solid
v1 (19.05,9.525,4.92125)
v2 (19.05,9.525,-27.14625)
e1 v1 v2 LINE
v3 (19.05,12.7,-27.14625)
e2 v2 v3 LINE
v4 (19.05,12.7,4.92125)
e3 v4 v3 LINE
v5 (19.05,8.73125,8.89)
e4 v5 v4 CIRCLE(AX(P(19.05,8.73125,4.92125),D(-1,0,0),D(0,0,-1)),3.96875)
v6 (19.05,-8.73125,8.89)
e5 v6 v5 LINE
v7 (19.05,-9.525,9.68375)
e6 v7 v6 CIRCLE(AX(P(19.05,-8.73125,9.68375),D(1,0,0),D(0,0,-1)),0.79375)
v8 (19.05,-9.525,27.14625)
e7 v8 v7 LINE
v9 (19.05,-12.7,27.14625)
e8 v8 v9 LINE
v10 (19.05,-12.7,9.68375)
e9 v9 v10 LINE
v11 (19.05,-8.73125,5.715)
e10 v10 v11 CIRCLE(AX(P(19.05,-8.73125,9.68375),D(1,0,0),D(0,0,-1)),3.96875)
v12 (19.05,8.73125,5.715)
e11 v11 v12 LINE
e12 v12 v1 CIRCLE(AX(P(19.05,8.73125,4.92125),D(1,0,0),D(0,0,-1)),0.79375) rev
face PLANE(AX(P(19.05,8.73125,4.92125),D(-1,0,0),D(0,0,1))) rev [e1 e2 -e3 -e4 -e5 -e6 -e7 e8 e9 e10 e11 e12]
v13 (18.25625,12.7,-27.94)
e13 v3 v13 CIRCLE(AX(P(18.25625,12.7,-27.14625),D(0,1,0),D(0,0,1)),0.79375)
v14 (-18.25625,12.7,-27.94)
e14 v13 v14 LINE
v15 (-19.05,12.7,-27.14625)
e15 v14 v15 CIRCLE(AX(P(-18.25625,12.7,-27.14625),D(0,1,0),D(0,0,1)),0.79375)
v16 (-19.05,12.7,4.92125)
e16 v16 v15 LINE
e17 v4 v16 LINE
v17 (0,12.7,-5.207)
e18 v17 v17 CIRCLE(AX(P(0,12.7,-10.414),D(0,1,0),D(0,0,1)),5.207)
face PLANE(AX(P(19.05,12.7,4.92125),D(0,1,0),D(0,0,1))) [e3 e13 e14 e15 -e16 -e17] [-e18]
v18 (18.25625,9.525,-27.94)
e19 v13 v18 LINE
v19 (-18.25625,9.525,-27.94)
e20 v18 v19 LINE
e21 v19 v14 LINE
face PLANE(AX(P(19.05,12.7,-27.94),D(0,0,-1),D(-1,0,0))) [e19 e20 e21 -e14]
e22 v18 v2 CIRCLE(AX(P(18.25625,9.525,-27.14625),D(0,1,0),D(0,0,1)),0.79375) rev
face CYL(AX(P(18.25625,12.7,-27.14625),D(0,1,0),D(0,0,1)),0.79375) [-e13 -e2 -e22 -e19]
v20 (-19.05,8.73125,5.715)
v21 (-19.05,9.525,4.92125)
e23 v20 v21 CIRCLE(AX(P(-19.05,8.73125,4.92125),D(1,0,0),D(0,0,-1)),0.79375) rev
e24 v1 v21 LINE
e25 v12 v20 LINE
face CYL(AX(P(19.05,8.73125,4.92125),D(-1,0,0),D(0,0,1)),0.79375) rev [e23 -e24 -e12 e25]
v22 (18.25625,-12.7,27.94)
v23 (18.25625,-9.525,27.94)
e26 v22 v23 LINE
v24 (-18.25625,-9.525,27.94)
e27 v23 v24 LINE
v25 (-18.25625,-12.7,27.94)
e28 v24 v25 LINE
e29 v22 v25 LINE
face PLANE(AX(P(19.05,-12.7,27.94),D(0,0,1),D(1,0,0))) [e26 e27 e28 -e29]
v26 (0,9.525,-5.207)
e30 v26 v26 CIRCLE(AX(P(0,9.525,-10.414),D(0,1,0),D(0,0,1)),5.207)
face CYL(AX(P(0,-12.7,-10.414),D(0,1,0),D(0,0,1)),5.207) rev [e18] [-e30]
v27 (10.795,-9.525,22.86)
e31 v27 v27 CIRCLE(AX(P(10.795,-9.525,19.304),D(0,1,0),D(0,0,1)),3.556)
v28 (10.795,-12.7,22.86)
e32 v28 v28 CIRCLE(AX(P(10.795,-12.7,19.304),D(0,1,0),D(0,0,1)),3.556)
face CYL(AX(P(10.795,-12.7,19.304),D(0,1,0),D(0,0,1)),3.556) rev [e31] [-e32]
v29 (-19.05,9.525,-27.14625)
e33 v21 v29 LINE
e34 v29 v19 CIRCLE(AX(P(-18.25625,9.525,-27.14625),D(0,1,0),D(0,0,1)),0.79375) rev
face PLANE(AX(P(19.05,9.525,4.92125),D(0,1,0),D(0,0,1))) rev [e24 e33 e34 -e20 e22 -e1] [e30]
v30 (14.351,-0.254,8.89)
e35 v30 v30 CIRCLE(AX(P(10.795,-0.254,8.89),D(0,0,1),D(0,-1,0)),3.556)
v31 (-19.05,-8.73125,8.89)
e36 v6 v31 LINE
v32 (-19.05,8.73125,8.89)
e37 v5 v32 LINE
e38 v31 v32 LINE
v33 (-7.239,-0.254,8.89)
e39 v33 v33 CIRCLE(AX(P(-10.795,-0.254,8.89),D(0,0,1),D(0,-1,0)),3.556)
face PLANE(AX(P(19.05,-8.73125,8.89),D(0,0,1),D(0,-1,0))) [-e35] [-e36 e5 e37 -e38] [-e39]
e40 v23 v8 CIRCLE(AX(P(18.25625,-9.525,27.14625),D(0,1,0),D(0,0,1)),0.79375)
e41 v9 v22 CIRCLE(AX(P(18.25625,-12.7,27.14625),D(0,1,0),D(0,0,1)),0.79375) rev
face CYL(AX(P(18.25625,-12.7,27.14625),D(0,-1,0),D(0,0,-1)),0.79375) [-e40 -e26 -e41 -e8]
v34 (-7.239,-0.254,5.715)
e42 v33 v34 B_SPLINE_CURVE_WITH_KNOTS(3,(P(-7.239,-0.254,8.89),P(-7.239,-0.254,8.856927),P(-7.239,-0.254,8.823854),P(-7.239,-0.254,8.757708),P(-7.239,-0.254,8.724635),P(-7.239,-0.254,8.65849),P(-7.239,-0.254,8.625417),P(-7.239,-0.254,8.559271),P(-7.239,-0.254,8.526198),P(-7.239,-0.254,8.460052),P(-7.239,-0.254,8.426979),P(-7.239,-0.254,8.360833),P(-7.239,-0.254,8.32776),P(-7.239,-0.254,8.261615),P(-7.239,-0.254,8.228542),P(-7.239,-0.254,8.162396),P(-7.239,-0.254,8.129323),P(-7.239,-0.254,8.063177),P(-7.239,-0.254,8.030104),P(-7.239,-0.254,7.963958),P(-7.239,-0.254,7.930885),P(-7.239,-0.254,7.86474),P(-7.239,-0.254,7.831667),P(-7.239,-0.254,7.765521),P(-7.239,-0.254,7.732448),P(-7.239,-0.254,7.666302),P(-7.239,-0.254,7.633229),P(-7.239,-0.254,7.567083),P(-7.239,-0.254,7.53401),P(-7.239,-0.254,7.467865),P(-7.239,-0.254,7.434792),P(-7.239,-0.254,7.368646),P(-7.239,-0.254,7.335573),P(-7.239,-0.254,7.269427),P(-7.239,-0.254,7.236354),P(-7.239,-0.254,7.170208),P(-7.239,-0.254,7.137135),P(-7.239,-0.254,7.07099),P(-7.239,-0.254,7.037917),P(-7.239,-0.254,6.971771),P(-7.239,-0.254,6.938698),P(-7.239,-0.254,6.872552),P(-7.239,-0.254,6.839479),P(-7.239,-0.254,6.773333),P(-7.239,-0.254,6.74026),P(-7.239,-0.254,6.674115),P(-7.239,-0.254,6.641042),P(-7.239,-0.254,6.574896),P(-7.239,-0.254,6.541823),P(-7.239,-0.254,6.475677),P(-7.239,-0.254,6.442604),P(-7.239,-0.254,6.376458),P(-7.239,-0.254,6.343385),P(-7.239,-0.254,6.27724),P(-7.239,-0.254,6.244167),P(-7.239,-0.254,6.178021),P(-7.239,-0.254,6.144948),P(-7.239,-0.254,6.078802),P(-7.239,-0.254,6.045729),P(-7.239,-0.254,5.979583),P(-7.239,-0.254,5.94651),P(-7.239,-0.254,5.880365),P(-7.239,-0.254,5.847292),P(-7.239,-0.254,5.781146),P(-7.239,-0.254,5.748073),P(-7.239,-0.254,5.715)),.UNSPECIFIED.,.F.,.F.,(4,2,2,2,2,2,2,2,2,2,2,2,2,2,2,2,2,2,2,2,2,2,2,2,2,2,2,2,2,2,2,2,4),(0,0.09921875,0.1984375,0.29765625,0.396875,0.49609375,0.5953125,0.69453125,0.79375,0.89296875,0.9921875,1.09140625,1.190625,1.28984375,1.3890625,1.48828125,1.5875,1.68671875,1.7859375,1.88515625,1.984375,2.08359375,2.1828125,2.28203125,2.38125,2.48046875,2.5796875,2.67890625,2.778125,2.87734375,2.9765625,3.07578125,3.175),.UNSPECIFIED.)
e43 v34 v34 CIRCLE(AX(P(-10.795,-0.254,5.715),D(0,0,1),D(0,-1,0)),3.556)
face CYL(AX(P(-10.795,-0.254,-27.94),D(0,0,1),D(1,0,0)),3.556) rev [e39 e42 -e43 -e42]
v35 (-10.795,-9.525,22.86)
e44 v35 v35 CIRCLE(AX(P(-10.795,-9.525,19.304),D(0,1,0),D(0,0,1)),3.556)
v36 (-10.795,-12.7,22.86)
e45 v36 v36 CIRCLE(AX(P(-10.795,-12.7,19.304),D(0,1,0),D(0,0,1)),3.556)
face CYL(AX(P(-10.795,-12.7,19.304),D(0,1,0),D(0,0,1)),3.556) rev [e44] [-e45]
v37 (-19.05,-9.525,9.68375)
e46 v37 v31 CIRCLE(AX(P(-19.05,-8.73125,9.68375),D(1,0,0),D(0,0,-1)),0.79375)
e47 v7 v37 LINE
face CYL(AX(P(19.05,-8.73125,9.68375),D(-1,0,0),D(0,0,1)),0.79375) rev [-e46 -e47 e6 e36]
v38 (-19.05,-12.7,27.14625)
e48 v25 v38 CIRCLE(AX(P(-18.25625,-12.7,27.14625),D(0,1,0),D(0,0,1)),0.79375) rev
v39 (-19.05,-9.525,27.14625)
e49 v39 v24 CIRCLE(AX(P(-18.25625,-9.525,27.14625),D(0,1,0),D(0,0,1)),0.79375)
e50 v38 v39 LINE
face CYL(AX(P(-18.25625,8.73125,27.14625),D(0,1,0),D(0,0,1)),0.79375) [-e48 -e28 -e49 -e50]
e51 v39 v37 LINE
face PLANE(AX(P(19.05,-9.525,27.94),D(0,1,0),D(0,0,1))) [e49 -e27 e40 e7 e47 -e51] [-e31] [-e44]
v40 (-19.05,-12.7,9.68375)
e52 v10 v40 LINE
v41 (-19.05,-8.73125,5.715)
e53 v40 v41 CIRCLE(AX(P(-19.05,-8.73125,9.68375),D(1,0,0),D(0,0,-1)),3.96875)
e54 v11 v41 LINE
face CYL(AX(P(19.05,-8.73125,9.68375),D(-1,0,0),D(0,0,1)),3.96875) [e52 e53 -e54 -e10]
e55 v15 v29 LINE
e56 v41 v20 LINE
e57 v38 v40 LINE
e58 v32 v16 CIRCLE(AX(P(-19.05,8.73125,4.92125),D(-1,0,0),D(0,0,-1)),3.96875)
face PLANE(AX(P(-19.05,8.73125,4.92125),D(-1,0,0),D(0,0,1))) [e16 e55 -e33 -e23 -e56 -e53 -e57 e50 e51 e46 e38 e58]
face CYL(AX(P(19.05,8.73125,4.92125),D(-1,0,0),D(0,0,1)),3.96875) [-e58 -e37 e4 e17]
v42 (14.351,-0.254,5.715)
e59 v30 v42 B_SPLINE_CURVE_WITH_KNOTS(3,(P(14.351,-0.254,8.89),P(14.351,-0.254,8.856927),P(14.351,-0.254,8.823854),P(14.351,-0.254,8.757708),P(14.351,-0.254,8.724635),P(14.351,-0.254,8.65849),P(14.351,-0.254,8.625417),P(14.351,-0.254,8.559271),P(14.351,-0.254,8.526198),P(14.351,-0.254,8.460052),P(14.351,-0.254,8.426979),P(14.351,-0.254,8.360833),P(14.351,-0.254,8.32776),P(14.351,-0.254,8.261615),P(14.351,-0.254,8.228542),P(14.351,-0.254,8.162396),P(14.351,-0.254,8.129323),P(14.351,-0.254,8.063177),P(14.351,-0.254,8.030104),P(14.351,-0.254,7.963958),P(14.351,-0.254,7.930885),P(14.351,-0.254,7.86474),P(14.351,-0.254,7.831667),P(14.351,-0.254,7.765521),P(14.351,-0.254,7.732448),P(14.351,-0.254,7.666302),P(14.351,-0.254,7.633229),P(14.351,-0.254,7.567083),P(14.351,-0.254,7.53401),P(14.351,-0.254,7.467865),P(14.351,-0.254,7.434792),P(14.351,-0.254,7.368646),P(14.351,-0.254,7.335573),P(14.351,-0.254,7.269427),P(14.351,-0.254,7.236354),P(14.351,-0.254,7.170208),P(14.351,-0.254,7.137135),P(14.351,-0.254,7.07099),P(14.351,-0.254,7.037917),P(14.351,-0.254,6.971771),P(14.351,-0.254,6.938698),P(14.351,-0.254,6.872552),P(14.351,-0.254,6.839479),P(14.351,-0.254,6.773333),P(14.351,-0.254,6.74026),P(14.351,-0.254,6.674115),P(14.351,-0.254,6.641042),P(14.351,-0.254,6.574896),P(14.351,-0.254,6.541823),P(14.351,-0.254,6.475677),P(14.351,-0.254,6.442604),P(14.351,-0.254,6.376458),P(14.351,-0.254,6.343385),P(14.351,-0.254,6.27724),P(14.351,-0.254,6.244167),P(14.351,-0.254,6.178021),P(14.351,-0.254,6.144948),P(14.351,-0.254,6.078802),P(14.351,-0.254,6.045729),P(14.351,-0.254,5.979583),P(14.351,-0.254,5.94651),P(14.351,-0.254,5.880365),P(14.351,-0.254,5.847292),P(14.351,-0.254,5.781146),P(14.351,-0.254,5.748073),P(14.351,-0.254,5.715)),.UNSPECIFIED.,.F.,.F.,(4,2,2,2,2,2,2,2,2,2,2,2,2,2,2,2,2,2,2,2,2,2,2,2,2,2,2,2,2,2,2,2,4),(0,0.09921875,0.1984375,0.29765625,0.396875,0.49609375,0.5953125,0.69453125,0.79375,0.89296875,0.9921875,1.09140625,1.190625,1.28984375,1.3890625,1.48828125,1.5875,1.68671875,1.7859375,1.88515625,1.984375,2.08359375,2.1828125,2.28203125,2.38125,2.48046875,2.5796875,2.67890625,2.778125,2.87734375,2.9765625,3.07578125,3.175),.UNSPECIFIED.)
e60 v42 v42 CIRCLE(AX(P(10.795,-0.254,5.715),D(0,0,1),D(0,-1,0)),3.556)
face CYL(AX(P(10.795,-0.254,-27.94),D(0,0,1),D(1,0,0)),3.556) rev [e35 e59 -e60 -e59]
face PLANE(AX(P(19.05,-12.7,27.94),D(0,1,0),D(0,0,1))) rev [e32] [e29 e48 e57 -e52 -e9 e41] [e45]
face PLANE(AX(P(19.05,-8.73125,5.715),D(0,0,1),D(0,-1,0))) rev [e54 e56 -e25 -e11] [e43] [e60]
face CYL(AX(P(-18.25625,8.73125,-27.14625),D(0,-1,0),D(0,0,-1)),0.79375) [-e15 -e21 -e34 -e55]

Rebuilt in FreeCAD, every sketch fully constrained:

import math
import FreeCAD as App
import Part
import Sketcher
from FreeCAD import Vector
Q = App.Units.Quantity


def edges_at(feature, points):
    """Names of the edges that pass closest to the given points."""
    edges = feature.Shape.Edges
    near = lambda p: min(range(len(edges)), key=lambda i: edges[i].distToShape(Part.Vertex(*p))[0])
    return sorted({f"Edge{near(p) + 1}" for p in points})

doc = App.newDocument("Part")
params = doc.addObject("Spreadsheet::Sheet", "Params")
for row, (alias, value) in enumerate([
    ("sketch1_radius", "0.15625 in"),
    ("sketch1_radius2", "0.03125 in"),
    ("sketch1_height", "0.71875 in"),
    ("pad1_length", "1.5 in"),
    ("sketch2_diameter", "0.41 in"),
    ("sketch2_diameter2", "0.28 in"),
    ("sketch3_diameter", "0.28 in"),
    ("fillet_radius", "0.03125 in"),
], start=1):
    params.set(f"A{row}", alias)
    params.set(f"B{row}", "=" + value)
    params.setAlias(f"B{row}", alias)

body = doc.addObject("PartDesign::Body", "Body")

# Sketch on YZ plane
sketch1 = doc.addObject("Sketcher::SketchObject", "Sketch")
body.addObject(sketch1)
sketch1.AttachmentSupport = (doc.YZ_Plane, [""])
sketch1.MapMode = "FlatFace"
sketch1.addGeometry([
    Part.LineSegment(Vector(-9.525, 9.68375, 0), Vector(-9.525, 27.94, 0)),  # 0
    Part.LineSegment(Vector(-9.525, 27.94, 0), Vector(-12.7, 27.94, 0)),  # 1
    Part.LineSegment(Vector(-12.7, 27.94, 0), Vector(-12.7, 9.68375, 0)),  # 2
    Part.ArcOfCircle(Part.Circle(Vector(-8.73125, 9.68375, 0), Vector(0, 0, 1), 3.96875), math.radians(180), math.radians(270)),  # 3
    Part.LineSegment(Vector(-8.73125, 5.715, 0), Vector(8.73125, 5.715, 0)),  # 4
    Part.ArcOfCircle(Part.Circle(Vector(8.73125, 4.92125, 0), Vector(0, 0, 1), 0.79375), math.radians(0), math.radians(90)),  # 5
    Part.LineSegment(Vector(9.525, 4.92125, 0), Vector(9.525, -27.94, 0)),  # 6
    Part.LineSegment(Vector(9.525, -27.94, 0), Vector(12.7, -27.94, 0)),  # 7
    Part.LineSegment(Vector(12.7, -27.94, 0), Vector(12.7, 4.92125, 0)),  # 8
    Part.ArcOfCircle(Part.Circle(Vector(8.73125, 4.92125, 0), Vector(0, 0, 1), 3.96875), math.radians(0), math.radians(90)),  # 9
    Part.LineSegment(Vector(8.73125, 8.89, 0), Vector(-8.73125, 8.89, 0)),  # 10
    Part.ArcOfCircle(Part.Circle(Vector(-8.73125, 9.68375, 0), Vector(0, 0, 1), 0.79375), math.radians(180), math.radians(270)),  # 11
], False)
sketch1.addConstraint([
    Sketcher.Constraint("Coincident", 0, 2, 1, 1),
    Sketcher.Constraint("Coincident", 1, 2, 2, 1),
    Sketcher.Constraint("Tangent", 2, 2, 3, 1),
    Sketcher.Constraint("Tangent", 3, 2, 4, 1),
    Sketcher.Constraint("Tangent", 4, 2, 5, 2),
    Sketcher.Constraint("Tangent", 5, 1, 6, 1),
    Sketcher.Constraint("Coincident", 6, 2, 7, 1),
    Sketcher.Constraint("Coincident", 7, 2, 8, 1),
    Sketcher.Constraint("Tangent", 8, 2, 9, 1),
    Sketcher.Constraint("Tangent", 9, 2, 10, 1),
    Sketcher.Constraint("Tangent", 10, 2, 11, 2),
    Sketcher.Constraint("Tangent", 11, 1, 0, 1),
    Sketcher.Constraint("Vertical", 0),
    Sketcher.Constraint("Horizontal", 1),
    Sketcher.Constraint("Vertical", 2),
    Sketcher.Constraint("Horizontal", 4),
    Sketcher.Constraint("Vertical", 6),
    Sketcher.Constraint("Horizontal", 7),
    Sketcher.Constraint("Vertical", 8),
    Sketcher.Constraint("Horizontal", 10),
    Sketcher.Constraint("Coincident", 9, 3, 5, 3),
    Sketcher.Constraint("Coincident", 11, 3, 3, 3),
    Sketcher.Constraint("Equal", 3, 9),
    Sketcher.Constraint("Symmetric", 0, 2, 6, 2, -1, 1),
    Sketcher.Constraint("Radius", 3, Q("0.15625 in")),
    Sketcher.Constraint("Radius", 5, Q("0.03125 in")),
    Sketcher.Constraint("DistanceY", -1, 1, 0, 2, Q("1.1 in")),
    Sketcher.Constraint("DistanceX", 1, 2, -1, 1, Q("0.5 in")),
    Sketcher.Constraint("DistanceY", 0, 1, 0, 2, Q("0.71875 in")),
])
sketch1.setExpression("Constraints[24]", "Params.sketch1_radius")
sketch1.setExpression("Constraints[25]", "Params.sketch1_radius2")
sketch1.setExpression("Constraints[28]", "Params.sketch1_height")
pad1 = doc.addObject("PartDesign::Pad", "Pad")
body.addObject(pad1)
pad1.Profile = sketch1
pad1.setExpression("Length", "Params.pad1_length")
pad1.Midplane = True

# Sketch on XZ plane
sketch2 = doc.addObject("Sketcher::SketchObject", "Sketch001")
body.addObject(sketch2)
sketch2.AttachmentSupport = (doc.XZ_Plane, [""])
sketch2.MapMode = "FlatFace"
sketch2.addGeometry([
    Part.Circle(Vector(0, -10.414, 0), Vector(0, 0, 1), 5.207),
    Part.Circle(Vector(10.795, 19.304, 0), Vector(0, 0, 1), 3.556),
    Part.Circle(Vector(-10.795, 19.304, 0), Vector(0, 0, 1), 3.556),
], False)
sketch2.addConstraint([
    Sketcher.Constraint("Equal", 1, 2),
    Sketcher.Constraint("Symmetric", 1, 3, 2, 3, -2),
    Sketcher.Constraint("PointOnObject", 0, 3, -2),
    Sketcher.Constraint("Diameter", 0, Q("0.41 in")),
    Sketcher.Constraint("Diameter", 1, Q("0.28 in")),
    Sketcher.Constraint("DistanceY", 0, 3, -1, 1, Q("0.41 in")),
    Sketcher.Constraint("DistanceY", -1, 1, 1, 3, Q("0.76 in")),
    Sketcher.Constraint("DistanceX", 2, 3, 1, 3, Q("0.85 in")),
])
sketch2.setExpression("Constraints[3]", "Params.sketch2_diameter")
sketch2.setExpression("Constraints[4]", "Params.sketch2_diameter2")
pocket1 = doc.addObject("PartDesign::Pocket", "Pocket")
body.addObject(pocket1)
pocket1.Profile = sketch2
pocket1.Type = "ThroughAll"
pocket1.Midplane = True

# Sketch on XY plane
sketch3 = doc.addObject("Sketcher::SketchObject", "Sketch002")
body.addObject(sketch3)
sketch3.AttachmentSupport = (doc.XY_Plane, [""])
sketch3.MapMode = "FlatFace"
sketch3.addGeometry([
    Part.Circle(Vector(10.795, -0.254, 0), Vector(0, 0, 1), 3.556),
    Part.Circle(Vector(-10.795, -0.254, 0), Vector(0, 0, 1), 3.556),
], False)
sketch3.addConstraint([
    Sketcher.Constraint("Equal", 0, 1),
    Sketcher.Constraint("Symmetric", 0, 3, 1, 3, -2),
    Sketcher.Constraint("Diameter", 0, Q("0.28 in")),
    Sketcher.Constraint("DistanceY", 0, 3, -1, 1, Q("0.01 in")),
    Sketcher.Constraint("DistanceX", 1, 3, 0, 3, Q("0.85 in")),
])
sketch3.setExpression("Constraints[2]", "Params.sketch3_diameter")
pocket2 = doc.addObject("PartDesign::Pocket", "Pocket001")
body.addObject(pocket2)
pocket2.Profile = sketch3
pocket2.Type = "ThroughAll"
pocket2.Midplane = True
doc.recompute()

fillet = doc.addObject("PartDesign::Fillet", "Fillet")
body.addObject(fillet)
fillet.Base = (pocket2, edges_at(pocket2, [
    (-19.05, -11.113, 27.94),
    (-19.05, 11.113, -27.94),
    (19.05, -11.113, 27.94),
    (19.05, 11.113, -27.94),
]))
fillet.setExpression("Radius", "Params.fillet_radius")

doc.recompute()
